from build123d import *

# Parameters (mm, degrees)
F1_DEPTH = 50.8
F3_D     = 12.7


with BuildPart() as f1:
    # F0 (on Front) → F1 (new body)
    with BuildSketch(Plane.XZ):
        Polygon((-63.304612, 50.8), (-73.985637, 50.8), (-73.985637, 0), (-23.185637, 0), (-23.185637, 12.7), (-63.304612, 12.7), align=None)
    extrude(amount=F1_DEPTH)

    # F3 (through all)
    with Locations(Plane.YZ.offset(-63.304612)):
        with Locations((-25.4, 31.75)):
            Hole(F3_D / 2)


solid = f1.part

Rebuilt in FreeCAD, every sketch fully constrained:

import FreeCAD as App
import Part
import Sketcher
Q = App.Units.Quantity


def add_polygon(sketch, points):
    """Adds a closed chain of lines whose ends are joined by coincident constraints."""
    first, n = sketch.GeometryCount, len(points)
    for a, b in zip(points, points[1:] + points[:1]):
        sketch.addGeometry(Part.LineSegment(App.Vector(*a, 0), App.Vector(*b, 0)), False)
    for i in range(n):
        sketch.addConstraint(Sketcher.Constraint("Coincident", first + i, 2, first + (i + 1) % n, 1))

doc = App.newDocument("Part")
body = doc.addObject("PartDesign::Body", "Body")

sketch1 = body.newObject("Sketcher::SketchObject", "Sketch")
sketch1.AttachmentSupport = (doc.getObject("XZ_Plane"), [""])
sketch1.MapMode = "FlatFace"
add_polygon(sketch1, [(-63.304612, 50.8), (-73.985637, 50.8), (-73.985637, 0), (-23.185637, 0), (-23.185637, 12.7), (-63.304612, 12.7)])
sketch1.addConstraint([
    Sketcher.Constraint("Horizontal", 0),
    Sketcher.Constraint("Vertical", 1),
    Sketcher.Constraint("Horizontal", 2),
    Sketcher.Constraint("Vertical", 3),
    Sketcher.Constraint("Horizontal", 4),
    Sketcher.Constraint("Vertical", 5),
    Sketcher.Constraint("PointOnObject", 1, 2, -1),
    Sketcher.Constraint("Equal", 2, 1),
    Sketcher.Constraint("DistanceX", 2, 1, 2, 2, Q("2 in")),
    Sketcher.Constraint("DistanceY", 3, 1, 3, 2, Q("0.5 in")),
    Sketcher.Constraint("DistanceX", 0, 2, 0, 1, Q("10.681025 mm")),
    Sketcher.Constraint("DistanceX", 0, 2, -1, 1, Q("73.985637 mm")),
])
pad1 = body.newObject("PartDesign::Pad", "Pad")
pad1.Profile = sketch1
pad1.Length = Q("2 in")

sketch2 = body.newObject("Sketcher::SketchObject", "Sketch001")
sketch2.AttachmentSupport = (doc.getObject("YZ_Plane"), [""])
sketch2.MapMode = "FlatFace"
sketch2.AttachmentOffset = App.Placement(App.Vector(0, 0, -63.304612), App.Rotation())
sketch2.addGeometry(Part.Circle(App.Vector(-25.4, 31.75, 0), App.Vector(0, 0, 1), 6.35), False)
sketch2.addConstraint([
    Sketcher.Constraint("Diameter", 0, Q("0.5 in")),
    Sketcher.Constraint("DistanceX", 0, 3, -1, 1, Q("1 in")),
    Sketcher.Constraint("DistanceY", -1, 1, 0, 3, Q("1.25 in")),
])
doc.recompute()
hole = body.newObject("PartDesign::Hole", "Hole")
hole.Profile = sketch2
hole.ThreadType = "None"
hole.Diameter = Q("0.5 in")
hole.DepthType = "ThroughAll"

doc.recompute()
